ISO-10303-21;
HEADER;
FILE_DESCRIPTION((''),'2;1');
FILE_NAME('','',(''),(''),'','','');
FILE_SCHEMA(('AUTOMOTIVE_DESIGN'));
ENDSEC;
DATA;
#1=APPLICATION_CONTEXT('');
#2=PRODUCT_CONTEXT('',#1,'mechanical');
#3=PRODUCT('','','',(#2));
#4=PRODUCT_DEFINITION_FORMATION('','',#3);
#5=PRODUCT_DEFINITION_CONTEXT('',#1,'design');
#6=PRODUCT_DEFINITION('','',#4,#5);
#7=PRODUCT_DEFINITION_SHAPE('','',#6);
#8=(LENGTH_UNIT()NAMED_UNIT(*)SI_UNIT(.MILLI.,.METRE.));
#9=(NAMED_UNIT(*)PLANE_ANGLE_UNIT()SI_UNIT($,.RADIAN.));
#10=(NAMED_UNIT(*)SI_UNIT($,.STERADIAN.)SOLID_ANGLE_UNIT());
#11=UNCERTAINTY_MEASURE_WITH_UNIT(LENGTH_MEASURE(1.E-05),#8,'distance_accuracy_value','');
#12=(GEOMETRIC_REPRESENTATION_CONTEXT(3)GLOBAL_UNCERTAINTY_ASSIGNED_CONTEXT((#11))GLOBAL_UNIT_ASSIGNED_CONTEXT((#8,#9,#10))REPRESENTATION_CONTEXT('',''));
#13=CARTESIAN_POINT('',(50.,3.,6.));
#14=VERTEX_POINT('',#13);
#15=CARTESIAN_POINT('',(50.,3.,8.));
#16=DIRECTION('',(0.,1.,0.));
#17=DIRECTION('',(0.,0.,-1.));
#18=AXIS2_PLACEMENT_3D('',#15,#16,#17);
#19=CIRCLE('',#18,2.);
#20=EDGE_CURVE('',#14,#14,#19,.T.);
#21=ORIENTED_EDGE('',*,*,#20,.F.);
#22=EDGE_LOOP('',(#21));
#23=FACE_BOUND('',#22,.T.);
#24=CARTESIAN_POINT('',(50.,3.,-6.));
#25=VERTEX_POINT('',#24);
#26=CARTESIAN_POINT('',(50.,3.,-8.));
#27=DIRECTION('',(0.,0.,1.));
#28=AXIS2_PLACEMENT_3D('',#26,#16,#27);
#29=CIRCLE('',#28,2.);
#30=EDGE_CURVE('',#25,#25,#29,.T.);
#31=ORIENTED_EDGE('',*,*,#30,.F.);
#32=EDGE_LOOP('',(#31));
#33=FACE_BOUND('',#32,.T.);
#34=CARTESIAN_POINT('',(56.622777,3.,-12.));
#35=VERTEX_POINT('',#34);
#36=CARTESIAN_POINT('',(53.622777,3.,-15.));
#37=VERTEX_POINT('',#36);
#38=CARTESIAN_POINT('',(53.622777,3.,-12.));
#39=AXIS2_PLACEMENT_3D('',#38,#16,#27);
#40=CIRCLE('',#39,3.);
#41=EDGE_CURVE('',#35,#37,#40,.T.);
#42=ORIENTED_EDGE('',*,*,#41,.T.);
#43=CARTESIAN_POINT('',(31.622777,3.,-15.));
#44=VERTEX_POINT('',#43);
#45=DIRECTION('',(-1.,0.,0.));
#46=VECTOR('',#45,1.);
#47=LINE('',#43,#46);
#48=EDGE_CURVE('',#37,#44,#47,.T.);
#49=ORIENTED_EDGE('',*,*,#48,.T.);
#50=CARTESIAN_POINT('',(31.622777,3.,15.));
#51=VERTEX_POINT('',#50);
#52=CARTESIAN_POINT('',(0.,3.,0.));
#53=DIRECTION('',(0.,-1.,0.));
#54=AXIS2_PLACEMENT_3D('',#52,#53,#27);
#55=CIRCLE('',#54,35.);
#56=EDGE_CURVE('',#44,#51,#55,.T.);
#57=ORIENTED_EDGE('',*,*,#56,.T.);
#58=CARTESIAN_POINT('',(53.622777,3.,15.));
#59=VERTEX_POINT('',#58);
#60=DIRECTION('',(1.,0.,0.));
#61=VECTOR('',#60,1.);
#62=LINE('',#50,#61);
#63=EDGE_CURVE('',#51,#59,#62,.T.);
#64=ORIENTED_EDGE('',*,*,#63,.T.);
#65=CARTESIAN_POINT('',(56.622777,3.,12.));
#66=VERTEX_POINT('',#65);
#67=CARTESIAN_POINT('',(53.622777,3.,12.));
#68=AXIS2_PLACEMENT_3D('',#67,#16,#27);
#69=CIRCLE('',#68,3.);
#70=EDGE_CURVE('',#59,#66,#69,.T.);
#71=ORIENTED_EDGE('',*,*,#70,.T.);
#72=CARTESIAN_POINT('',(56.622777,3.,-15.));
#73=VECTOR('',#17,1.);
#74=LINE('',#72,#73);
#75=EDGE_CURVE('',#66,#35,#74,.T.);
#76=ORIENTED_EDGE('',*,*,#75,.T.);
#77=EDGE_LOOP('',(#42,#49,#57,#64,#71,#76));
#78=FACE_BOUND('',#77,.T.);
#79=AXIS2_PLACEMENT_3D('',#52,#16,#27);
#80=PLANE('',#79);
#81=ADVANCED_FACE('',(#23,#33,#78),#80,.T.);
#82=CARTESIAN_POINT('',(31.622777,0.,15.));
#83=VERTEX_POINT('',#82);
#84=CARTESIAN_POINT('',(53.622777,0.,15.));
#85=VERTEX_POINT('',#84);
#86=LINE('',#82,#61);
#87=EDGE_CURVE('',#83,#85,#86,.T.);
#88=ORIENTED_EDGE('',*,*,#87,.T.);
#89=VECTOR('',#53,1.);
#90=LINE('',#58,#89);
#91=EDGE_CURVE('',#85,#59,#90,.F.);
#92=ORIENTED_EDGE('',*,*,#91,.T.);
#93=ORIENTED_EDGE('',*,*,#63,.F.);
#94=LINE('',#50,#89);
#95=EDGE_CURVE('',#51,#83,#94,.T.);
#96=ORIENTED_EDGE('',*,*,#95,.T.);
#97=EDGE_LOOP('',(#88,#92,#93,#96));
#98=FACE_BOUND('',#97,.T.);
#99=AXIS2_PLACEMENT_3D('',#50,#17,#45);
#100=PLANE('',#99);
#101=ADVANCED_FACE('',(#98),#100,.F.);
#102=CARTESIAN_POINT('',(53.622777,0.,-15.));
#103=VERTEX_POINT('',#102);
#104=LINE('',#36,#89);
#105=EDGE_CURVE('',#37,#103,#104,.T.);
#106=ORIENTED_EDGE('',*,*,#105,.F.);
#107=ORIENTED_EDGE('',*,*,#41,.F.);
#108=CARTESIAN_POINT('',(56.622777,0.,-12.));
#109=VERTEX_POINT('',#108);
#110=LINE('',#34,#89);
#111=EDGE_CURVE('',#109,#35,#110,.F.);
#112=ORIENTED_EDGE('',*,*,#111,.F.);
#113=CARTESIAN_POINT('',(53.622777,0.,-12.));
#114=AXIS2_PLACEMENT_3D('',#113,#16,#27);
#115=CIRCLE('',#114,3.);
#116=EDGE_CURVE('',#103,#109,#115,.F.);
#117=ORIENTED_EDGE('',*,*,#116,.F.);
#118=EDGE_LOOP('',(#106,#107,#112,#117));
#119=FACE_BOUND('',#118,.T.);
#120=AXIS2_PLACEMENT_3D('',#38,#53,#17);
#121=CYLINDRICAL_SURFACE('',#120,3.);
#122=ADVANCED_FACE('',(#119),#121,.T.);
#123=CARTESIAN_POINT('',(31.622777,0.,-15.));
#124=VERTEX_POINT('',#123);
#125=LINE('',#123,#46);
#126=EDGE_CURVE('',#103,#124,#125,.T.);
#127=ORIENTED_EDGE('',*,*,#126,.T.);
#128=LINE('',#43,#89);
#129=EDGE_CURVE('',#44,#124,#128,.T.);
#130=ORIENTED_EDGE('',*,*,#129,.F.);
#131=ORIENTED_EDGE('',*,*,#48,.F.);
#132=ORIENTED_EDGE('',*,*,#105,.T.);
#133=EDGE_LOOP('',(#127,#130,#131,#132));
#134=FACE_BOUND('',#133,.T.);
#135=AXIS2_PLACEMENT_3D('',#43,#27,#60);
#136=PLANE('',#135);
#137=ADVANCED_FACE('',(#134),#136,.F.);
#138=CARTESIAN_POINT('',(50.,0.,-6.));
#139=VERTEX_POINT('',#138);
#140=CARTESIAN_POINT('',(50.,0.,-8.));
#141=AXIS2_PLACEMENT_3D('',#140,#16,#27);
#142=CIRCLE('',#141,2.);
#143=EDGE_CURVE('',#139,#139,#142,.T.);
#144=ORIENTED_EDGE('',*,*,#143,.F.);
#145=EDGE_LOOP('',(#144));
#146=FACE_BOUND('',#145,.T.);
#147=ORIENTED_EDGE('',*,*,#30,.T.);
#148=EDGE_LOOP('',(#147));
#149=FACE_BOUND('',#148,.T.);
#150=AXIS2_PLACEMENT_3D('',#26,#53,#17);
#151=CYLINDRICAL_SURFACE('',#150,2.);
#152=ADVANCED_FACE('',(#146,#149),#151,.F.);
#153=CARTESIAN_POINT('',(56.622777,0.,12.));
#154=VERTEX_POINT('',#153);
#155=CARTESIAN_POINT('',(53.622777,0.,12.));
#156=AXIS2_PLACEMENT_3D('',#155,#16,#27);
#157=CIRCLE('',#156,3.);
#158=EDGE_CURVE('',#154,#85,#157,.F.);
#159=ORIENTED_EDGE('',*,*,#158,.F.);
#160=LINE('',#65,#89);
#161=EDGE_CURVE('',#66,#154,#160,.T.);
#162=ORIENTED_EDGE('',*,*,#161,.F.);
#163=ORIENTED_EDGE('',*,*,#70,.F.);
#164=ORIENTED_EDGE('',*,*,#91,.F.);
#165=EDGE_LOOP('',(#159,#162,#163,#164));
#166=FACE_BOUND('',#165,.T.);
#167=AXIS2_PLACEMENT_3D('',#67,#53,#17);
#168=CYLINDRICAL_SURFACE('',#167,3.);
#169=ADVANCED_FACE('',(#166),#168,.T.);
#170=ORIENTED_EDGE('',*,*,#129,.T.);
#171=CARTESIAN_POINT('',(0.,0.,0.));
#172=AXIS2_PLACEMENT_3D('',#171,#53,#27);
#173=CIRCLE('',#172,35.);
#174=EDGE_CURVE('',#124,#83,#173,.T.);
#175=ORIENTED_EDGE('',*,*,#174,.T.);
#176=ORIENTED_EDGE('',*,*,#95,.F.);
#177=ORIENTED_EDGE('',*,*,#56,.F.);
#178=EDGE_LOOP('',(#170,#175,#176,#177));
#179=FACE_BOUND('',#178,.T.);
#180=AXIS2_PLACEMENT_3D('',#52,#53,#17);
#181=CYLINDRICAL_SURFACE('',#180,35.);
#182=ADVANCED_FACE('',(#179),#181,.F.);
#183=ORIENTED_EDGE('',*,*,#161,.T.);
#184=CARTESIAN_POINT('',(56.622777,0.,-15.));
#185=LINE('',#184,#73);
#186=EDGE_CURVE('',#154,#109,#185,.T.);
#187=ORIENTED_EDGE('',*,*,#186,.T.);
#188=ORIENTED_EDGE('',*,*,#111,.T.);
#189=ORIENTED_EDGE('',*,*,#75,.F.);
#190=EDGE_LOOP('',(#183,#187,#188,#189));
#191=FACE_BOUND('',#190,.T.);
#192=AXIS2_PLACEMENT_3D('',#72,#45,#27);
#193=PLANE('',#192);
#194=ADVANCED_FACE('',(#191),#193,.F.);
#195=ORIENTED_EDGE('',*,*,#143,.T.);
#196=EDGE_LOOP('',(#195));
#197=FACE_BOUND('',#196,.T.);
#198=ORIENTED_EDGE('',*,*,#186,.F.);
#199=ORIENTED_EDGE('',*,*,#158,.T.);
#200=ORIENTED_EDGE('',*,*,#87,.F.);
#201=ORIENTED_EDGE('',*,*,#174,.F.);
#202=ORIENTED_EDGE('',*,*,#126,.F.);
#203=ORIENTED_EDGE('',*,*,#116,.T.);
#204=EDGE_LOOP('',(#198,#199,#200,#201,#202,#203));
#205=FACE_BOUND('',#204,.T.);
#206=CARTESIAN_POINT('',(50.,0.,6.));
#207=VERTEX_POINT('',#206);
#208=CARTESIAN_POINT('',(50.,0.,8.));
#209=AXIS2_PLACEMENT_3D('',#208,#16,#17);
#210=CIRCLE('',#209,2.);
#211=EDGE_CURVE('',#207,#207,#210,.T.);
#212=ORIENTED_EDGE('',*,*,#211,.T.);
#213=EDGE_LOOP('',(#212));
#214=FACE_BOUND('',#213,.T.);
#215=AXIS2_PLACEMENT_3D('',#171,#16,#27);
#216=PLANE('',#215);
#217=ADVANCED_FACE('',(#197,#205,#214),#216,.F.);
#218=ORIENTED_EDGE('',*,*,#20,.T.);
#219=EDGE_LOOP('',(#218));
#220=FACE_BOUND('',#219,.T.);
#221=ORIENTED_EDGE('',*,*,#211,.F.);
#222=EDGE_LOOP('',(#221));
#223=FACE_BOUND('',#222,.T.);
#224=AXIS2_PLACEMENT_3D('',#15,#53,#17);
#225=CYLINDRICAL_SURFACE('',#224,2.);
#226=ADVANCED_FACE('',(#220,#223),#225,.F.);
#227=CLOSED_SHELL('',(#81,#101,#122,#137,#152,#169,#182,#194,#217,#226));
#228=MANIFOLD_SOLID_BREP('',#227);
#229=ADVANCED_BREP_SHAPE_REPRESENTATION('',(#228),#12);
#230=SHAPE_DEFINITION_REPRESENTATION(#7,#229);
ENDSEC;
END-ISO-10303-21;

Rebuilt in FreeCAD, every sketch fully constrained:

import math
import FreeCAD as App
import Part
import Sketcher
from FreeCAD import Vector
Q = App.Units.Quantity


def edges_at(feature, points):
    """Names of the edges that pass closest to the given points."""
    edges = feature.Shape.Edges
    near = lambda p: min(range(len(edges)), key=lambda i: edges[i].distToShape(Part.Vertex(*p))[0])
    return sorted({f"Edge{near(p) + 1}" for p in points})

doc = App.newDocument("Part")
params = doc.addObject("Spreadsheet::Sheet", "Params")
for row, (alias, value) in enumerate([
    ("sketch1_diameter", "4 mm"),
    ("sketch1_radius", "35 mm"),
    ("sketch1_width", "25 mm"),
    ("sketch1_height", "30 mm"),
    ("pad1_length", "3 mm"),
    ("fillet_radius", "3 mm"),
], start=1):
    params.set(f"A{row}", alias)
    params.set(f"B{row}", "=" + value)
    params.setAlias(f"B{row}", alias)

body = doc.addObject("PartDesign::Body", "Body")

# Sketch on XZ plane
sketch1 = doc.addObject("Sketcher::SketchObject", "Sketch")
body.addObject(sketch1)
sketch1.AttachmentSupport = (doc.XZ_Plane, [""])
sketch1.MapMode = "FlatFace"
sketch1.addGeometry([
    Part.LineSegment(Vector(56.622777, -15, 0), Vector(31.622777, -15, 0)),  # 0
    Part.ArcOfCircle(Part.Circle(Vector(0, 0, 0), Vector(0, 0, 1), 35), math.radians(-25.376934), math.radians(25.376934)),  # 1
    Part.LineSegment(Vector(31.622777, 15, 0), Vector(56.622777, 15, 0)),  # 2
    Part.LineSegment(Vector(56.622777, 15, 0), Vector(56.622777, -15, 0)),  # 3
    Part.Circle(Vector(50, 8, 0), Vector(0, 0, 1), 2),  # 4
    Part.Circle(Vector(50, -8, 0), Vector(0, 0, 1), 2),  # 5
], False)
sketch1.addConstraint([
    Sketcher.Constraint("Coincident", 0, 2, 1, 1),
    Sketcher.Constraint("Coincident", 1, 2, 2, 1),
    Sketcher.Constraint("Coincident", 2, 2, 3, 1),
    Sketcher.Constraint("Coincident", 3, 2, 0, 1),
    Sketcher.Constraint("Horizontal", 0),
    Sketcher.Constraint("Horizontal", 2),
    Sketcher.Constraint("Vertical", 3),
    Sketcher.Constraint("Coincident", 1, 3, -1, 1),
    Sketcher.Constraint("Equal", 4, 5),
    Sketcher.Constraint("Symmetric", 4, 3, 5, 3, -1),
    Sketcher.Constraint("Vertical", 0, 2, 1, 2),
    Sketcher.Constraint("Diameter", 4, Q("4 mm")),
    Sketcher.Constraint("Radius", 1, Q("35 mm")),
    Sketcher.Constraint("DistanceX", 0, 2, 0, 1, Q("25 mm")),
    Sketcher.Constraint("DistanceY", 3, 2, 3, 1, Q("30 mm")),
    Sketcher.Constraint("DistanceX", -1, 1, 4, 3, Q("50 mm")),
    Sketcher.Constraint("DistanceY", -1, 1, 4, 3, Q("8 mm")),
])
sketch1.setExpression("Constraints[11]", "Params.sketch1_diameter")
sketch1.setExpression("Constraints[12]", "Params.sketch1_radius")
sketch1.setExpression("Constraints[13]", "Params.sketch1_width")
sketch1.setExpression("Constraints[14]", "Params.sketch1_height")
pad1 = doc.addObject("PartDesign::Pad", "Pad")
body.addObject(pad1)
pad1.Profile = sketch1
pad1.setExpression("Length", "Params.pad1_length")
pad1.Reversed = True
doc.recompute()

fillet = doc.addObject("PartDesign::Fillet", "Fillet")
body.addObject(fillet)
fillet.Base = (pad1, edges_at(pad1, [(56.623, 1.5, -15), (56.623, 1.5, 15)]))
fillet.setExpression("Radius", "Params.fillet_radius")

doc.recompute()
